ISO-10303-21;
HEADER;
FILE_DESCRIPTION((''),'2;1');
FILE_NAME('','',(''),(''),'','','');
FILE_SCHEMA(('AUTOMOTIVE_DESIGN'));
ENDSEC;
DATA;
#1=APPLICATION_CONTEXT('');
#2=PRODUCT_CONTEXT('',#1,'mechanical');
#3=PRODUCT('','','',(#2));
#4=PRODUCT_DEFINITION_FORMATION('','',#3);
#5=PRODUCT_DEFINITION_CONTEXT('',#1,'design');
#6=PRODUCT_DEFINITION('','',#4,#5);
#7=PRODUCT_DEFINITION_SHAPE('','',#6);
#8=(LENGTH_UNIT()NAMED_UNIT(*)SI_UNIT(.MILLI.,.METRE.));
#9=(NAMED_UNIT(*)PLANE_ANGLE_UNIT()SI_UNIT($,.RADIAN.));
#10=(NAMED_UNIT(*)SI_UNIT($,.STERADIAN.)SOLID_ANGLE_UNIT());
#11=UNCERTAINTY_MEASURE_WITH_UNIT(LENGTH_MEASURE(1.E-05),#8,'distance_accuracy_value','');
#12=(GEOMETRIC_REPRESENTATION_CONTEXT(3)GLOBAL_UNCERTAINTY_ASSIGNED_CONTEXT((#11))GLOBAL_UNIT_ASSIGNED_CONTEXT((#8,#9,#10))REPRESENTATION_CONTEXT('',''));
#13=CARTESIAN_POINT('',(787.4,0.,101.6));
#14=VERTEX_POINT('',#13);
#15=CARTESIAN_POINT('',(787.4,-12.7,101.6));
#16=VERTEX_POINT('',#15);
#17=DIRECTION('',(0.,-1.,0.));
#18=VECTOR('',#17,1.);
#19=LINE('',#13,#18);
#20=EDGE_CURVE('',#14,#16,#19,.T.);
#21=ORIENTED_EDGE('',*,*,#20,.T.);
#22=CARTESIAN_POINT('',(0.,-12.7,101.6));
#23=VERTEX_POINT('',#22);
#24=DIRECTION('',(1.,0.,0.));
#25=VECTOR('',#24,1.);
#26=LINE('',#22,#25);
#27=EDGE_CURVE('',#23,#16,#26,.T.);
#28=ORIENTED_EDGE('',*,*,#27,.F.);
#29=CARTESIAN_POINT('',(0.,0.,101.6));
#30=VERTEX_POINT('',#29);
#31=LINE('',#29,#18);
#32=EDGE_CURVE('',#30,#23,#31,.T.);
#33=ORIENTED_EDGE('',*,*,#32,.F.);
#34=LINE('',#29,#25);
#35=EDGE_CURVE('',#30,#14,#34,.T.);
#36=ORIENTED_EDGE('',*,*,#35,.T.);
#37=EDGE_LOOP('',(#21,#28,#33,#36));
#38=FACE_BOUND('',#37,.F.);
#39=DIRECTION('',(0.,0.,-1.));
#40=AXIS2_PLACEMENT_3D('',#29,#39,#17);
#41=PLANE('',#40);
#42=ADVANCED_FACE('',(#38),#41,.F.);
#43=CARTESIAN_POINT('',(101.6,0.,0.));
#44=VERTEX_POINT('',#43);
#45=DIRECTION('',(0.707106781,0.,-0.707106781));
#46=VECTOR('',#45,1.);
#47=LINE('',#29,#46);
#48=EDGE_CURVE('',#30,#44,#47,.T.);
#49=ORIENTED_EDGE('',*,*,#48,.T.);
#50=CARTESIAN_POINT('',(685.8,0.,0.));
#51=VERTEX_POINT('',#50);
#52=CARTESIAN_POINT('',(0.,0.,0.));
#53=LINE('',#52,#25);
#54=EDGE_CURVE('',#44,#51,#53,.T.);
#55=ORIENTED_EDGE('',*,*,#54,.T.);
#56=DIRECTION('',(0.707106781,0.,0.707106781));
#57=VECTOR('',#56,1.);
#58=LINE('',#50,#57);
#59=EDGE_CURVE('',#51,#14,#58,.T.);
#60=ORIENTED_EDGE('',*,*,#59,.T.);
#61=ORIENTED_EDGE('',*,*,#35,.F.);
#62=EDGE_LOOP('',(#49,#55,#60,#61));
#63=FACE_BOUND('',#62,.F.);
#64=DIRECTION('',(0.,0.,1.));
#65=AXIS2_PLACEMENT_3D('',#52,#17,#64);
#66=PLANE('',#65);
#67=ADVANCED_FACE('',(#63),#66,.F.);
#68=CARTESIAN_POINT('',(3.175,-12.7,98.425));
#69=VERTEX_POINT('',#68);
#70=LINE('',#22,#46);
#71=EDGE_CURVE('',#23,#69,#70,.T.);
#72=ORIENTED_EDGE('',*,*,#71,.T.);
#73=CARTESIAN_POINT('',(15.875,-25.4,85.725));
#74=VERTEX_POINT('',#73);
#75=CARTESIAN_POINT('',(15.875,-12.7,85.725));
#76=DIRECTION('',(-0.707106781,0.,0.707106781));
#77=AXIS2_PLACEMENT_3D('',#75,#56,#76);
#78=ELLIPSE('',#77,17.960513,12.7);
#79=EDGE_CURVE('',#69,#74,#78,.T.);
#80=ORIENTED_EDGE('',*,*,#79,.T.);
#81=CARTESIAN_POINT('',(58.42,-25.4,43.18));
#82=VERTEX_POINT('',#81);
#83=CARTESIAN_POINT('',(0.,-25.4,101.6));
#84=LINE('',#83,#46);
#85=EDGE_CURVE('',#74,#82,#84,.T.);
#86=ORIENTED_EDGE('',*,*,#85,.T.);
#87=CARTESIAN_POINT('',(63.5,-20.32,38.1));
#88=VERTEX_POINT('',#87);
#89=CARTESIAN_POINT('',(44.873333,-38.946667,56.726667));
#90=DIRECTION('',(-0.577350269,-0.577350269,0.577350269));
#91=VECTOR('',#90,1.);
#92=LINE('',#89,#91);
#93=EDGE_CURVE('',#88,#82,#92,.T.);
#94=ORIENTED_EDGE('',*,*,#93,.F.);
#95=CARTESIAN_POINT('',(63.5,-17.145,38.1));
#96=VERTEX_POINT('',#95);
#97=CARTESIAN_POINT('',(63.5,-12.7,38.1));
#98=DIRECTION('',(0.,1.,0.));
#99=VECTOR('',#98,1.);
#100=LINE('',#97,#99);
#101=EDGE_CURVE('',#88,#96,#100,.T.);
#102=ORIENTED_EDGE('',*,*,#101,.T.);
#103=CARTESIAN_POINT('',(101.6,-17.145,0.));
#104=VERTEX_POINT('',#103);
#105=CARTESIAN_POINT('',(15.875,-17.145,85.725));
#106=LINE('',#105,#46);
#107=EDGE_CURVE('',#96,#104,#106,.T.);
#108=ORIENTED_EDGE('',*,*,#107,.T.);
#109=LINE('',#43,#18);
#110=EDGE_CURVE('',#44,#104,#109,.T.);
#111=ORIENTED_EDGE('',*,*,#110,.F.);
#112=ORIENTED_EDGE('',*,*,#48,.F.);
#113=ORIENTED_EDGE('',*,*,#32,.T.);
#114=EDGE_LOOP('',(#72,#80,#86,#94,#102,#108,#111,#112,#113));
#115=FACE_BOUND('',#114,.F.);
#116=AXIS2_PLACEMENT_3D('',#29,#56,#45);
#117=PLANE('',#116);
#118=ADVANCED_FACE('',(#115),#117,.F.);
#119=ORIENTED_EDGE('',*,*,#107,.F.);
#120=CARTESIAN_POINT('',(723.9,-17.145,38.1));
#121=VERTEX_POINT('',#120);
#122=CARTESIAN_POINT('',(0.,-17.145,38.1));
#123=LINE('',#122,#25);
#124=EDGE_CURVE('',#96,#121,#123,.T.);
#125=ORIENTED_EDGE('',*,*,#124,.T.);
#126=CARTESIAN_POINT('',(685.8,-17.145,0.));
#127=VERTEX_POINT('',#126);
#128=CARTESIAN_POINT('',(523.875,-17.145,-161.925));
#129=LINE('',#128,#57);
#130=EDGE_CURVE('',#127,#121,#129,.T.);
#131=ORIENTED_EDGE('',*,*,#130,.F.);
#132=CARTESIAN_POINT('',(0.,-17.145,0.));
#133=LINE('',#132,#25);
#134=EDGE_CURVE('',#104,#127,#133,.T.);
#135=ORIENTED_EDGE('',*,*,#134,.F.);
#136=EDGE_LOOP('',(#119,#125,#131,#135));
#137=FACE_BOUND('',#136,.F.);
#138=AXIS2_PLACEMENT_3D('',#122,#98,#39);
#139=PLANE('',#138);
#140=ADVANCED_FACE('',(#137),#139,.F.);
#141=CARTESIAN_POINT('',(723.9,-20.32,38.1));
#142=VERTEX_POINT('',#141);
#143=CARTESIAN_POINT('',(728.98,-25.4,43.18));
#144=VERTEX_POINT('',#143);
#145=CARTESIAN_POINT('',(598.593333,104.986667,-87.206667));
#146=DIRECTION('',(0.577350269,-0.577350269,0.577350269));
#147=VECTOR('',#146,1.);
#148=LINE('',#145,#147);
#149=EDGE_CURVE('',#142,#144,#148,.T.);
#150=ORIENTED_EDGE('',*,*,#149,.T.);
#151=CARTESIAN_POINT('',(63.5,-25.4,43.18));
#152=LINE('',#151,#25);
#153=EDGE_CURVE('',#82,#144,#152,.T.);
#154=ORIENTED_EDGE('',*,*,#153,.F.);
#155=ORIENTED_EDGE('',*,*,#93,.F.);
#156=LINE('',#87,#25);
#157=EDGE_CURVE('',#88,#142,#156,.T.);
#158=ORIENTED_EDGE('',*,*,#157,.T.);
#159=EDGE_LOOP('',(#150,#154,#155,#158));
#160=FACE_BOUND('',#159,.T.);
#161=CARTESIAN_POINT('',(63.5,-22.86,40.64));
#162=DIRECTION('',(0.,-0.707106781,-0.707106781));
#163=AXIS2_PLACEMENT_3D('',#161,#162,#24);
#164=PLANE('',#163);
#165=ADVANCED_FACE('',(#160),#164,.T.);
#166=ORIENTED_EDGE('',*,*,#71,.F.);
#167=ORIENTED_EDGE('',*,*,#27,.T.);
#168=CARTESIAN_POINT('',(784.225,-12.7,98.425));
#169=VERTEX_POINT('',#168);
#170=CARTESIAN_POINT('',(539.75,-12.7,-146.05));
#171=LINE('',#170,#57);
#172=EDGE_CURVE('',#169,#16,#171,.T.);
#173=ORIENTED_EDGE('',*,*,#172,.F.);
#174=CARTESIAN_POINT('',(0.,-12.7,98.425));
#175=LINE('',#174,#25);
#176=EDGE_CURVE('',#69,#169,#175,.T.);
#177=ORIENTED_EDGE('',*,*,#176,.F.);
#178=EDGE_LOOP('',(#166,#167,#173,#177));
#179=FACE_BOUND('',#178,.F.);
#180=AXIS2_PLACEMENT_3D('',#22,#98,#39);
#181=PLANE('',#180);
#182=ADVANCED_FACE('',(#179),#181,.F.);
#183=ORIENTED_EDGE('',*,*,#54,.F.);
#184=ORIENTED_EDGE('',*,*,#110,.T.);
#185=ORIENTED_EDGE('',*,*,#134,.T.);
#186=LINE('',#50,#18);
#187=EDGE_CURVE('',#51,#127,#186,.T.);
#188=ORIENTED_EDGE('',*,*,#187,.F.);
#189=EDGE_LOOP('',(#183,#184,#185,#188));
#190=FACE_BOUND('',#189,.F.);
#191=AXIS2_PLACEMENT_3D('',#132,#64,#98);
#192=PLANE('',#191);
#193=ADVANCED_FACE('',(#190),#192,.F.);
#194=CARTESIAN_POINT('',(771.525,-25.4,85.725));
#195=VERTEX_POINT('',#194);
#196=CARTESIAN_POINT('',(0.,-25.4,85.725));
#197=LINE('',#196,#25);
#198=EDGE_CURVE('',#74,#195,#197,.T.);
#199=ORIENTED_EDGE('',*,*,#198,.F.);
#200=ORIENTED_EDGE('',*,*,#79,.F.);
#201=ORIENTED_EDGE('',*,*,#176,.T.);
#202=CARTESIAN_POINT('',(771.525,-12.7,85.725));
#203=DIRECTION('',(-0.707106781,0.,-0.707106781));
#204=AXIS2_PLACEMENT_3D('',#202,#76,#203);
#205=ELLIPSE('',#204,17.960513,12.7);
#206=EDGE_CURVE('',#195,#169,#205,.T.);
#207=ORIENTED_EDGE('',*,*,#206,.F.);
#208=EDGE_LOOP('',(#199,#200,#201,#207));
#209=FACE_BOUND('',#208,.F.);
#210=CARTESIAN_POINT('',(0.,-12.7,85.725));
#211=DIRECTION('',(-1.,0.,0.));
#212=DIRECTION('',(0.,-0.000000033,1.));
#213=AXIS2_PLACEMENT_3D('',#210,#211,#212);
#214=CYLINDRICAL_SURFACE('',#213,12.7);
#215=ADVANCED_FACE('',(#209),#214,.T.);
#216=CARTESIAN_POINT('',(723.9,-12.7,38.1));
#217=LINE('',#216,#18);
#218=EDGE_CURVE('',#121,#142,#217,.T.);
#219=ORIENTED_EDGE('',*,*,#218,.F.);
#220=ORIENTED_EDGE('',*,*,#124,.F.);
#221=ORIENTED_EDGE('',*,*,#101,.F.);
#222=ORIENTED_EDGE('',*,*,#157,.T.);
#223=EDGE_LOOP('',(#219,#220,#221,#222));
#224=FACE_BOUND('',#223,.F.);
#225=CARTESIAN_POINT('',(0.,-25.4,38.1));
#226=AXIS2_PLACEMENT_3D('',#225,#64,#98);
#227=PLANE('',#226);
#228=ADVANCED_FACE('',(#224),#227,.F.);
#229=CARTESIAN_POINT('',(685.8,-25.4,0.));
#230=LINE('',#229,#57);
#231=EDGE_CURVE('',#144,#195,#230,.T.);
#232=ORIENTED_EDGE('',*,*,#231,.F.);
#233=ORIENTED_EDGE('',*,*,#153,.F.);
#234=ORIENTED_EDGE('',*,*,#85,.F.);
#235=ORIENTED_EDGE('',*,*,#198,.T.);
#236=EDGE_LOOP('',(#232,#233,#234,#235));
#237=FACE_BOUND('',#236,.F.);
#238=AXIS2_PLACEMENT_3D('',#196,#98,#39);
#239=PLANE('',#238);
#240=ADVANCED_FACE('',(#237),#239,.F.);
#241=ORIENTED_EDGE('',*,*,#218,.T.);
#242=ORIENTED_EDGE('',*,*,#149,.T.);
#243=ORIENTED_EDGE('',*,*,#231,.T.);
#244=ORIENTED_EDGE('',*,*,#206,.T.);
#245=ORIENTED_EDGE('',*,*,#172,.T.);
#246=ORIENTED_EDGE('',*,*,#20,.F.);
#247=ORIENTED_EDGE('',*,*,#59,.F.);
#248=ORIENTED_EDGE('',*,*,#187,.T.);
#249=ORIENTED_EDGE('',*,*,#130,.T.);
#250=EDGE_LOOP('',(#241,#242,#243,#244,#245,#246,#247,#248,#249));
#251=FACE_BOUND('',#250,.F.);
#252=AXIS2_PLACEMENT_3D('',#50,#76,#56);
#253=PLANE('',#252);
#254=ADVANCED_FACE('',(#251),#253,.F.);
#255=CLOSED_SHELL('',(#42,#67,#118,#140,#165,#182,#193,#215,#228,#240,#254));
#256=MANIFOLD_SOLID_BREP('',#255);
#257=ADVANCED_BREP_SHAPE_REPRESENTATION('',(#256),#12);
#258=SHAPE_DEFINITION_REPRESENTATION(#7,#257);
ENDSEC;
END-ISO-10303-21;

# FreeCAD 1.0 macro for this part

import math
import FreeCAD as App
import Part
import Sketcher

V = App.Vector
Q = App.Units.Quantity


def edges_at(feature, points):
    """Names of the edges that pass closest to the given points."""
    edges = feature.Shape.Edges
    near = lambda p: min(range(len(edges)), key=lambda i: edges[i].distToShape(Part.Vertex(*p))[0])
    return sorted({f"Edge{near(p) + 1}" for p in points})


def add_polygon(sketch, points):
    """Adds a closed chain of lines whose ends are joined by coincident constraints."""
    first, n = sketch.GeometryCount, len(points)
    for a, b in zip(points, points[1:] + points[:1]):
        sketch.addGeometry(Part.LineSegment(App.Vector(*a, 0), App.Vector(*b, 0)), False)
    for i in range(n):
        sketch.addConstraint(Sketcher.Constraint("Coincident", first + i, 2, first + (i + 1) % n, 1))

doc = App.newDocument("Part")
body = doc.addObject("PartDesign::Body", "Body")

sketch1 = body.newObject("Sketcher::SketchObject", "Sketch")
sketch1.AttachmentSupport = (doc.getObject("YZ_Plane"), [""])
sketch1.MapMode = "FlatFace"
sketch1.addGeometry(Part.LineSegment(V(-17.1, 0, 0), V(0, 0, 0)), False)
sketch1.addGeometry(Part.LineSegment(V(0, 0, 0), V(0, 101.6, 0)), False)
sketch1.addGeometry(Part.LineSegment(V(0, 101.6, 0), V(-12.7, 101.6, 0)), False)
sketch1.addGeometry(Part.LineSegment(V(-12.7, 101.6, 0), V(-12.7, 98.4, 0)), False)
sketch1.addGeometry(Part.ArcOfCircle(Part.Circle(V(-12.7, 85.7, 0), V(0, 0, 1), 12.7), math.radians(90), math.radians(180)), False)
sketch1.addGeometry(Part.LineSegment(V(-25.4, 85.7, 0), V(-25.4, 38.1, 0)), False)
sketch1.addGeometry(Part.LineSegment(V(-25.4, 38.1, 0), V(-17.1, 38.1, 0)), False)
sketch1.addGeometry(Part.LineSegment(V(-17.1, 38.1, 0), V(-17.1, 0, 0)), False)
sketch1.addConstraint(Sketcher.Constraint("Coincident", 0, 2, 1, 1))
sketch1.addConstraint(Sketcher.Constraint("Coincident", 1, 2, 2, 1))
sketch1.addConstraint(Sketcher.Constraint("Coincident", 2, 2, 3, 1))
sketch1.addConstraint(Sketcher.Constraint("Coincident", 3, 2, 4, 1))
sketch1.addConstraint(Sketcher.Constraint("Tangent", 4, 2, 5, 1))
sketch1.addConstraint(Sketcher.Constraint("Coincident", 5, 2, 6, 1))
sketch1.addConstraint(Sketcher.Constraint("Coincident", 6, 2, 7, 1))
sketch1.addConstraint(Sketcher.Constraint("Coincident", 7, 2, 0, 1))
sketch1.addConstraint(Sketcher.Constraint("Horizontal", 0))
sketch1.addConstraint(Sketcher.Constraint("Vertical", 1))
sketch1.addConstraint(Sketcher.Constraint("Horizontal", 2))
sketch1.addConstraint(Sketcher.Constraint("Vertical", 3))
sketch1.addConstraint(Sketcher.Constraint("Vertical", 5))
sketch1.addConstraint(Sketcher.Constraint("Horizontal", 6))
sketch1.addConstraint(Sketcher.Constraint("Vertical", 7))
sketch1.addConstraint(Sketcher.Constraint("Coincident", 0, 2, -1, 1))
sketch1.addConstraint(Sketcher.Constraint("Vertical", 4, 3, 2, 2))
sketch1.addConstraint(Sketcher.Constraint("Radius", 4, Q("0.5 in")))
sketch1.addConstraint(Sketcher.Constraint("DistanceY", 1, 1, 1, 2, Q("4 in")))
sketch1.addConstraint(Sketcher.Constraint("DistanceX", 2, 2, 2, 1, Q("0.5 in")))
sketch1.addConstraint(Sketcher.Constraint("DistanceY", 7, 2, 7, 1, Q("1.5 in")))
sketch1.addConstraint(Sketcher.Constraint("DistanceX", 0, 1, 0, 2, Q("0.675 in")))
sketch1.addConstraint(Sketcher.Constraint("DistanceY", 3, 2, 3, 1, Q("0.125 in")))
pad1 = body.newObject("PartDesign::Pad", "Pad")
pad1.Profile = sketch1
pad1.Length = Q("31 in")

sketch2 = body.newObject("Sketcher::SketchObject", "Sketch001")
sketch2.AttachmentSupport = (doc.getObject("XZ_Plane"), [""])
sketch2.MapMode = "FlatFace"
add_polygon(sketch2, [(686, 0), (787, 102), (787, 0)])
add_polygon(sketch2, [(0, 0), (0, 102), (102, 0)])
sketch2.addConstraint(Sketcher.Constraint("Vertical", 1))
sketch2.addConstraint(Sketcher.Constraint("Horizontal", 2))
sketch2.addConstraint(Sketcher.Constraint("Vertical", 3))
sketch2.addConstraint(Sketcher.Constraint("Horizontal", 5))
sketch2.addConstraint(Sketcher.Constraint("Coincident", 5, 2, -1, 1))
sketch2.addConstraint(Sketcher.Constraint("PointOnObject", 1, 2, -1))
sketch2.addConstraint(Sketcher.Constraint("Perpendicular", 0, 4))
sketch2.addConstraint(Sketcher.Constraint("Horizontal", 0, 2, 3, 2))
sketch2.addConstraint(Sketcher.Constraint("Equal", 2, 5))
sketch2.addConstraint(Sketcher.Constraint("DistanceX", 2, 2, 2, 1, Q("4 in")))
sketch2.addConstraint(Sketcher.Constraint("DistanceX", -1, 1, 0, 2, Q("31 in")))
pocket1 = body.newObject("PartDesign::Pocket", "Pocket")
pocket1.Profile = sketch2
pocket1.Length = Q("1 in")
pocket1.Reversed = True
doc.recompute()

chamfer = body.newObject("PartDesign::Chamfer", "Chamfer")
chamfer.Base = (pocket1, edges_at(pocket1, [(393.7, -25.4, 38.1)]))
chamfer.Size = Q("0.2 in")

doc.recompute()
